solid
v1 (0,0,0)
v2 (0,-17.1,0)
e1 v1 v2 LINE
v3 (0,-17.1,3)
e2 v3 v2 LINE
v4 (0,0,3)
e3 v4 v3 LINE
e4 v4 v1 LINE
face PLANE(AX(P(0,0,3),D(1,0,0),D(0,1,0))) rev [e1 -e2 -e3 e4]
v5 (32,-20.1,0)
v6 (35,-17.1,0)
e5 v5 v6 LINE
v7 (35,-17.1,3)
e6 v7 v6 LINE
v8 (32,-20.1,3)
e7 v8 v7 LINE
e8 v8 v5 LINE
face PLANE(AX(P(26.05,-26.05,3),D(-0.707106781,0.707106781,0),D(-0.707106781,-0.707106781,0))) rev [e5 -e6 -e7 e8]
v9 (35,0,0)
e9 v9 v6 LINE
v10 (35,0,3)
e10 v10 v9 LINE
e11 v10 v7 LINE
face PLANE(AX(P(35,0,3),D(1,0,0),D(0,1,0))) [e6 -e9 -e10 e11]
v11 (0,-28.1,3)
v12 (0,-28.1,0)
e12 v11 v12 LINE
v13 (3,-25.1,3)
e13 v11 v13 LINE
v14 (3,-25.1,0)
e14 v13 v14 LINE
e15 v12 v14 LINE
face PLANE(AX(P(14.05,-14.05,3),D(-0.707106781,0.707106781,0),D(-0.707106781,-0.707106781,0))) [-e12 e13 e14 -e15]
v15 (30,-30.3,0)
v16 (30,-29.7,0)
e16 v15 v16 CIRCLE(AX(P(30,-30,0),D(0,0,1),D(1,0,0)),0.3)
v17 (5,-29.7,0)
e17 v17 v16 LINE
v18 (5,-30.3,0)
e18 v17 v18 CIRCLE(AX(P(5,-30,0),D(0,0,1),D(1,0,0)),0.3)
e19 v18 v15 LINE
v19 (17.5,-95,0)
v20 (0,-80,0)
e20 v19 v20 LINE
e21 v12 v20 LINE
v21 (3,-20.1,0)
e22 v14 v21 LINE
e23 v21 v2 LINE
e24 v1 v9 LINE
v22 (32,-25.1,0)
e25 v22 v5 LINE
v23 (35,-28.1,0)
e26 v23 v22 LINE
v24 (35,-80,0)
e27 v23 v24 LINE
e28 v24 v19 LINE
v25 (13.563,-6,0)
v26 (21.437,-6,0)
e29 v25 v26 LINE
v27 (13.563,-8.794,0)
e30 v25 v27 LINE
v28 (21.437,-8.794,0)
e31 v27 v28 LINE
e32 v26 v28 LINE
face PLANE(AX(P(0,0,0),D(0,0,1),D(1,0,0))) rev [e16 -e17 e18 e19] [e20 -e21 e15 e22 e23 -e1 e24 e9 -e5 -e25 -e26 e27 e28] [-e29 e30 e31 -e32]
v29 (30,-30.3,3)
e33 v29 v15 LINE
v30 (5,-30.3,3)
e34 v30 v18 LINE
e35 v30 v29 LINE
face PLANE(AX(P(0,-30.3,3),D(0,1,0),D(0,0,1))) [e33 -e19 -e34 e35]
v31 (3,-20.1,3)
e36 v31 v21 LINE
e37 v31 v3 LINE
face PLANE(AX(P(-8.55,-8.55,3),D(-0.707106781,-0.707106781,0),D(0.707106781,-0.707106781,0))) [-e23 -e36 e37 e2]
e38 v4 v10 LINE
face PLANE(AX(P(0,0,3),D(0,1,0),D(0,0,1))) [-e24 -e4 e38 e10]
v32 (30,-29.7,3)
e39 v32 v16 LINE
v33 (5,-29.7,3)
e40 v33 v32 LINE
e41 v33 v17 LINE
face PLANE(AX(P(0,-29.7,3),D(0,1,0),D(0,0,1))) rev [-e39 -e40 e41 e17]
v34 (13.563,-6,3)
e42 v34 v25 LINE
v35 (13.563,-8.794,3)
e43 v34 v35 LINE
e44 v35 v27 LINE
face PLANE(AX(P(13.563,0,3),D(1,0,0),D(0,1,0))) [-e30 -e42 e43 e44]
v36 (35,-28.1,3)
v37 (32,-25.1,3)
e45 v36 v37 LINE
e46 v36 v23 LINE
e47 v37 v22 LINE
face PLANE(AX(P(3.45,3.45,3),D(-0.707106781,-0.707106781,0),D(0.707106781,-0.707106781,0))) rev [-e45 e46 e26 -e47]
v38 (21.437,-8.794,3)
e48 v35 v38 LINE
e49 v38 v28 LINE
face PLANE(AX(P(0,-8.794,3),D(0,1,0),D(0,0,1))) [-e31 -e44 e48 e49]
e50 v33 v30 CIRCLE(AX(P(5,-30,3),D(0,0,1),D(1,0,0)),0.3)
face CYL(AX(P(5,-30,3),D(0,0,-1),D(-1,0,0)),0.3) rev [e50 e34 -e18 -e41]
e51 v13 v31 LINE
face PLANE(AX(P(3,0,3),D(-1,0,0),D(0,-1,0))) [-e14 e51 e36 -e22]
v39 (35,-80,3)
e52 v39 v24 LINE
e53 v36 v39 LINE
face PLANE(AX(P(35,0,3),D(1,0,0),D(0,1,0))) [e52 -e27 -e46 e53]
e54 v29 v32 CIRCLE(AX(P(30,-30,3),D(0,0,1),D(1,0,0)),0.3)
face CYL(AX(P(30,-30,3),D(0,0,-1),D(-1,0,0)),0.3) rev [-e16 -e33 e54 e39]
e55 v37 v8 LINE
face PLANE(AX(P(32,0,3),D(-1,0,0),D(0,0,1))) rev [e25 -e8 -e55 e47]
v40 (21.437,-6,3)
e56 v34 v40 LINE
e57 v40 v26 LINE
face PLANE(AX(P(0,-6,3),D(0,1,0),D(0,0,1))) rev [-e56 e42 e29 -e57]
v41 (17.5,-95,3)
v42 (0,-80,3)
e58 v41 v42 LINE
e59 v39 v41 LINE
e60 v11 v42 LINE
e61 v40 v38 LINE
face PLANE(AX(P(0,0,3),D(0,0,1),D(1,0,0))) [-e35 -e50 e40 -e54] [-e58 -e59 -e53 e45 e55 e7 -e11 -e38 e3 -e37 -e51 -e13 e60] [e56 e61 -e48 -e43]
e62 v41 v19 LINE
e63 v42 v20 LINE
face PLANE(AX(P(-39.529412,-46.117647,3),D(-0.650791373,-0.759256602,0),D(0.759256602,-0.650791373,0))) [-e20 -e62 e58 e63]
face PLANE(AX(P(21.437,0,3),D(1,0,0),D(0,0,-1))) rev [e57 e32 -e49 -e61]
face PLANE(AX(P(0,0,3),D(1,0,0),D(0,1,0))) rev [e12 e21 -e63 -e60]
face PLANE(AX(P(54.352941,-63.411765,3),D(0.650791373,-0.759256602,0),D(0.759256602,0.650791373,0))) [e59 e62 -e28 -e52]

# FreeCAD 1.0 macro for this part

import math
import FreeCAD as App
import Part
import Sketcher

doc = App.newDocument("Part")
params = doc.addObject("Spreadsheet::Sheet", "Params")
for row, (alias, value) in enumerate([
    ("sketch1_radius", "0.3 mm"),
    ("sketch1_width", "35 mm"),
    ("sketch1_width2", "25 mm"),
    ("sketch1_height", "5 mm"),
    ("sketch1_height2", "51.9 mm"),
    ("pad1_length", "3 mm"),
], start=1):
    params.set(f"A{row}", alias)
    params.set(f"B{row}", "=" + value)
    params.setAlias(f"B{row}", alias)

body = doc.addObject("PartDesign::Body", "Body")

# Sketch on XY plane
sketch1 = doc.addObject("Sketcher::SketchObject", "Sketch")
body.addObject(sketch1)
sketch1.AttachmentSupport = (doc.XY_Plane, [""])
sketch1.MapMode = "FlatFace"
sketch1.addGeometry([
    Part.LineSegment(App.Vector(17.5, -95, 0), App.Vector(35, -80, 0)),  # 0
    Part.LineSegment(App.Vector(35, -80, 0), App.Vector(35, -28.1, 0)),  # 1
    Part.LineSegment(App.Vector(35, -28.1, 0), App.Vector(32, -25.1, 0)),  # 2
    Part.LineSegment(App.Vector(32, -25.1, 0), App.Vector(32, -20.1, 0)),  # 3
    Part.LineSegment(App.Vector(32, -20.1, 0), App.Vector(35, -17.1, 0)),  # 4
    Part.LineSegment(App.Vector(35, -17.1, 0), App.Vector(35, 0, 0)),  # 5
    Part.LineSegment(App.Vector(35, 0, 0), App.Vector(0, 0, 0)),  # 6
    Part.LineSegment(App.Vector(0, 0, 0), App.Vector(0, -17.1, 0)),  # 7
    Part.LineSegment(App.Vector(0, -17.1, 0), App.Vector(3, -20.1, 0)),  # 8
    Part.LineSegment(App.Vector(3, -20.1, 0), App.Vector(3, -25.1, 0)),  # 9
    Part.LineSegment(App.Vector(3, -25.1, 0), App.Vector(0, -28.1, 0)),  # 10
    Part.LineSegment(App.Vector(0, -28.1, 0), App.Vector(0, -80, 0)),  # 11
    Part.LineSegment(App.Vector(0, -80, 0), App.Vector(17.5, -95, 0)),  # 12
    Part.LineSegment(App.Vector(30, -30.3, 0), App.Vector(5, -30.3, 0)),  # 13
    Part.ArcOfCircle(Part.Circle(App.Vector(5, -30, 0), App.Vector(0, 0, 1), 0.3), math.radians(90), math.radians(270)),  # 14
    Part.LineSegment(App.Vector(5, -29.7, 0), App.Vector(30, -29.7, 0)),  # 15
    Part.ArcOfCircle(Part.Circle(App.Vector(30, -30, 0), App.Vector(0, 0, 1), 0.3), math.radians(-90), math.radians(90)),  # 16
    Part.LineSegment(App.Vector(21.44, -8.79, 0), App.Vector(13.56, -8.79, 0)),  # 17
    Part.LineSegment(App.Vector(13.56, -8.79, 0), App.Vector(13.56, -6, 0)),  # 18
    Part.LineSegment(App.Vector(13.56, -6, 0), App.Vector(21.44, -6, 0)),  # 19
    Part.LineSegment(App.Vector(21.44, -6, 0), App.Vector(21.44, -8.79, 0)),  # 20
], False)
sketch1.addConstraint([
    Sketcher.Constraint("Coincident", 0, 2, 1, 1),
    Sketcher.Constraint("Coincident", 1, 2, 2, 1),
    Sketcher.Constraint("Coincident", 2, 2, 3, 1),
    Sketcher.Constraint("Coincident", 3, 2, 4, 1),
    Sketcher.Constraint("Coincident", 4, 2, 5, 1),
    Sketcher.Constraint("Coincident", 5, 2, 6, 1),
    Sketcher.Constraint("Coincident", 6, 2, 7, 1),
    Sketcher.Constraint("Coincident", 7, 2, 8, 1),
    Sketcher.Constraint("Coincident", 8, 2, 9, 1),
    Sketcher.Constraint("Coincident", 9, 2, 10, 1),
    Sketcher.Constraint("Coincident", 10, 2, 11, 1),
    Sketcher.Constraint("Coincident", 11, 2, 12, 1),
    Sketcher.Constraint("Coincident", 12, 2, 0, 1),
    Sketcher.Constraint("Tangent", 13, 2, 14, 2),
    Sketcher.Constraint("Tangent", 14, 1, 15, 1),
    Sketcher.Constraint("Tangent", 15, 2, 16, 2),
    Sketcher.Constraint("Tangent", 16, 1, 13, 1),
    Sketcher.Constraint("Coincident", 17, 2, 18, 1),
    Sketcher.Constraint("Coincident", 18, 2, 19, 1),
    Sketcher.Constraint("Coincident", 19, 2, 20, 1),
    Sketcher.Constraint("Coincident", 20, 2, 17, 1),
    Sketcher.Constraint("Vertical", 1),
    Sketcher.Constraint("Vertical", 3),
    Sketcher.Constraint("Vertical", 5),
    Sketcher.Constraint("Horizontal", 6),
    Sketcher.Constraint("Vertical", 7),
    Sketcher.Constraint("Vertical", 9),
    Sketcher.Constraint("Vertical", 11),
    Sketcher.Constraint("Horizontal", 13),
    Sketcher.Constraint("Horizontal", 15),
    Sketcher.Constraint("Horizontal", 17),
    Sketcher.Constraint("Vertical", 18),
    Sketcher.Constraint("Horizontal", 19),
    Sketcher.Constraint("Vertical", 20),
    Sketcher.Constraint("Coincident", 6, 2, -1, 1),
    Sketcher.Constraint("PointOnObject", 10, 2, -2),
    Sketcher.Constraint("Perpendicular", 2, 4),
    Sketcher.Constraint("Perpendicular", 4, 8),
    Sketcher.Constraint("Perpendicular", 8, 10),
    Sketcher.Constraint("Horizontal", 4, 2, 7, 2),
    Sketcher.Constraint("Horizontal", 3, 2, 8, 2),
    Sketcher.Constraint("Horizontal", 2, 2, 9, 2),
    Sketcher.Constraint("Horizontal", 1, 2, 10, 2),
    Sketcher.Constraint("Horizontal", 0, 2, 11, 2),
    Sketcher.Constraint("Vertical", 1, 2, 4, 2),
    Sketcher.Constraint("Equal", 0, 12),
    Sketcher.Constraint("Radius", 14, 0.3),
    Sketcher.Constraint("DistanceX", 6, 2, 6, 1, 35.0),
    Sketcher.Constraint("DistanceX", 13, 2, 13, 1, 25.0),
    Sketcher.Constraint("DistanceY", 3, 1, 3, 2, 5.0),
    Sketcher.Constraint("DistanceY", 1, 1, 1, 2, 51.9),
    Sketcher.Constraint("DistanceY", 5, 1, 5, 2, 17.1),
    Sketcher.Constraint("DistanceX", -1, 1, 14, 3, 5.0),
    Sketcher.Constraint("DistanceY", 14, 3, -1, 1, 30.0),
    Sketcher.Constraint("DistanceY", 0, 2, -1, 1, 80.0),
    Sketcher.Constraint("DistanceY", 12, 2, -1, 1, 95.0),
    Sketcher.Constraint("DistanceY", 18, 2, -1, 1, 6.0),
    Sketcher.Constraint("DistanceX", 17, 2, 17, 1, 7.874),
    Sketcher.Constraint("DistanceY", 18, 1, 18, 2, 2.794),
    Sketcher.Constraint("DistanceX", -1, 1, 17, 2, 13.563),
])
sketch1.setExpression("Constraints[46]", "Params.sketch1_radius")
sketch1.setExpression("Constraints[47]", "Params.sketch1_width")
sketch1.setExpression("Constraints[48]", "Params.sketch1_width2")
sketch1.setExpression("Constraints[49]", "Params.sketch1_height")
sketch1.setExpression("Constraints[50]", "Params.sketch1_height2")
pad1 = doc.addObject("PartDesign::Pad", "Pad")
body.addObject(pad1)
pad1.Profile = sketch1
pad1.setExpression("Length", "Params.pad1_length")

doc.recompute()
